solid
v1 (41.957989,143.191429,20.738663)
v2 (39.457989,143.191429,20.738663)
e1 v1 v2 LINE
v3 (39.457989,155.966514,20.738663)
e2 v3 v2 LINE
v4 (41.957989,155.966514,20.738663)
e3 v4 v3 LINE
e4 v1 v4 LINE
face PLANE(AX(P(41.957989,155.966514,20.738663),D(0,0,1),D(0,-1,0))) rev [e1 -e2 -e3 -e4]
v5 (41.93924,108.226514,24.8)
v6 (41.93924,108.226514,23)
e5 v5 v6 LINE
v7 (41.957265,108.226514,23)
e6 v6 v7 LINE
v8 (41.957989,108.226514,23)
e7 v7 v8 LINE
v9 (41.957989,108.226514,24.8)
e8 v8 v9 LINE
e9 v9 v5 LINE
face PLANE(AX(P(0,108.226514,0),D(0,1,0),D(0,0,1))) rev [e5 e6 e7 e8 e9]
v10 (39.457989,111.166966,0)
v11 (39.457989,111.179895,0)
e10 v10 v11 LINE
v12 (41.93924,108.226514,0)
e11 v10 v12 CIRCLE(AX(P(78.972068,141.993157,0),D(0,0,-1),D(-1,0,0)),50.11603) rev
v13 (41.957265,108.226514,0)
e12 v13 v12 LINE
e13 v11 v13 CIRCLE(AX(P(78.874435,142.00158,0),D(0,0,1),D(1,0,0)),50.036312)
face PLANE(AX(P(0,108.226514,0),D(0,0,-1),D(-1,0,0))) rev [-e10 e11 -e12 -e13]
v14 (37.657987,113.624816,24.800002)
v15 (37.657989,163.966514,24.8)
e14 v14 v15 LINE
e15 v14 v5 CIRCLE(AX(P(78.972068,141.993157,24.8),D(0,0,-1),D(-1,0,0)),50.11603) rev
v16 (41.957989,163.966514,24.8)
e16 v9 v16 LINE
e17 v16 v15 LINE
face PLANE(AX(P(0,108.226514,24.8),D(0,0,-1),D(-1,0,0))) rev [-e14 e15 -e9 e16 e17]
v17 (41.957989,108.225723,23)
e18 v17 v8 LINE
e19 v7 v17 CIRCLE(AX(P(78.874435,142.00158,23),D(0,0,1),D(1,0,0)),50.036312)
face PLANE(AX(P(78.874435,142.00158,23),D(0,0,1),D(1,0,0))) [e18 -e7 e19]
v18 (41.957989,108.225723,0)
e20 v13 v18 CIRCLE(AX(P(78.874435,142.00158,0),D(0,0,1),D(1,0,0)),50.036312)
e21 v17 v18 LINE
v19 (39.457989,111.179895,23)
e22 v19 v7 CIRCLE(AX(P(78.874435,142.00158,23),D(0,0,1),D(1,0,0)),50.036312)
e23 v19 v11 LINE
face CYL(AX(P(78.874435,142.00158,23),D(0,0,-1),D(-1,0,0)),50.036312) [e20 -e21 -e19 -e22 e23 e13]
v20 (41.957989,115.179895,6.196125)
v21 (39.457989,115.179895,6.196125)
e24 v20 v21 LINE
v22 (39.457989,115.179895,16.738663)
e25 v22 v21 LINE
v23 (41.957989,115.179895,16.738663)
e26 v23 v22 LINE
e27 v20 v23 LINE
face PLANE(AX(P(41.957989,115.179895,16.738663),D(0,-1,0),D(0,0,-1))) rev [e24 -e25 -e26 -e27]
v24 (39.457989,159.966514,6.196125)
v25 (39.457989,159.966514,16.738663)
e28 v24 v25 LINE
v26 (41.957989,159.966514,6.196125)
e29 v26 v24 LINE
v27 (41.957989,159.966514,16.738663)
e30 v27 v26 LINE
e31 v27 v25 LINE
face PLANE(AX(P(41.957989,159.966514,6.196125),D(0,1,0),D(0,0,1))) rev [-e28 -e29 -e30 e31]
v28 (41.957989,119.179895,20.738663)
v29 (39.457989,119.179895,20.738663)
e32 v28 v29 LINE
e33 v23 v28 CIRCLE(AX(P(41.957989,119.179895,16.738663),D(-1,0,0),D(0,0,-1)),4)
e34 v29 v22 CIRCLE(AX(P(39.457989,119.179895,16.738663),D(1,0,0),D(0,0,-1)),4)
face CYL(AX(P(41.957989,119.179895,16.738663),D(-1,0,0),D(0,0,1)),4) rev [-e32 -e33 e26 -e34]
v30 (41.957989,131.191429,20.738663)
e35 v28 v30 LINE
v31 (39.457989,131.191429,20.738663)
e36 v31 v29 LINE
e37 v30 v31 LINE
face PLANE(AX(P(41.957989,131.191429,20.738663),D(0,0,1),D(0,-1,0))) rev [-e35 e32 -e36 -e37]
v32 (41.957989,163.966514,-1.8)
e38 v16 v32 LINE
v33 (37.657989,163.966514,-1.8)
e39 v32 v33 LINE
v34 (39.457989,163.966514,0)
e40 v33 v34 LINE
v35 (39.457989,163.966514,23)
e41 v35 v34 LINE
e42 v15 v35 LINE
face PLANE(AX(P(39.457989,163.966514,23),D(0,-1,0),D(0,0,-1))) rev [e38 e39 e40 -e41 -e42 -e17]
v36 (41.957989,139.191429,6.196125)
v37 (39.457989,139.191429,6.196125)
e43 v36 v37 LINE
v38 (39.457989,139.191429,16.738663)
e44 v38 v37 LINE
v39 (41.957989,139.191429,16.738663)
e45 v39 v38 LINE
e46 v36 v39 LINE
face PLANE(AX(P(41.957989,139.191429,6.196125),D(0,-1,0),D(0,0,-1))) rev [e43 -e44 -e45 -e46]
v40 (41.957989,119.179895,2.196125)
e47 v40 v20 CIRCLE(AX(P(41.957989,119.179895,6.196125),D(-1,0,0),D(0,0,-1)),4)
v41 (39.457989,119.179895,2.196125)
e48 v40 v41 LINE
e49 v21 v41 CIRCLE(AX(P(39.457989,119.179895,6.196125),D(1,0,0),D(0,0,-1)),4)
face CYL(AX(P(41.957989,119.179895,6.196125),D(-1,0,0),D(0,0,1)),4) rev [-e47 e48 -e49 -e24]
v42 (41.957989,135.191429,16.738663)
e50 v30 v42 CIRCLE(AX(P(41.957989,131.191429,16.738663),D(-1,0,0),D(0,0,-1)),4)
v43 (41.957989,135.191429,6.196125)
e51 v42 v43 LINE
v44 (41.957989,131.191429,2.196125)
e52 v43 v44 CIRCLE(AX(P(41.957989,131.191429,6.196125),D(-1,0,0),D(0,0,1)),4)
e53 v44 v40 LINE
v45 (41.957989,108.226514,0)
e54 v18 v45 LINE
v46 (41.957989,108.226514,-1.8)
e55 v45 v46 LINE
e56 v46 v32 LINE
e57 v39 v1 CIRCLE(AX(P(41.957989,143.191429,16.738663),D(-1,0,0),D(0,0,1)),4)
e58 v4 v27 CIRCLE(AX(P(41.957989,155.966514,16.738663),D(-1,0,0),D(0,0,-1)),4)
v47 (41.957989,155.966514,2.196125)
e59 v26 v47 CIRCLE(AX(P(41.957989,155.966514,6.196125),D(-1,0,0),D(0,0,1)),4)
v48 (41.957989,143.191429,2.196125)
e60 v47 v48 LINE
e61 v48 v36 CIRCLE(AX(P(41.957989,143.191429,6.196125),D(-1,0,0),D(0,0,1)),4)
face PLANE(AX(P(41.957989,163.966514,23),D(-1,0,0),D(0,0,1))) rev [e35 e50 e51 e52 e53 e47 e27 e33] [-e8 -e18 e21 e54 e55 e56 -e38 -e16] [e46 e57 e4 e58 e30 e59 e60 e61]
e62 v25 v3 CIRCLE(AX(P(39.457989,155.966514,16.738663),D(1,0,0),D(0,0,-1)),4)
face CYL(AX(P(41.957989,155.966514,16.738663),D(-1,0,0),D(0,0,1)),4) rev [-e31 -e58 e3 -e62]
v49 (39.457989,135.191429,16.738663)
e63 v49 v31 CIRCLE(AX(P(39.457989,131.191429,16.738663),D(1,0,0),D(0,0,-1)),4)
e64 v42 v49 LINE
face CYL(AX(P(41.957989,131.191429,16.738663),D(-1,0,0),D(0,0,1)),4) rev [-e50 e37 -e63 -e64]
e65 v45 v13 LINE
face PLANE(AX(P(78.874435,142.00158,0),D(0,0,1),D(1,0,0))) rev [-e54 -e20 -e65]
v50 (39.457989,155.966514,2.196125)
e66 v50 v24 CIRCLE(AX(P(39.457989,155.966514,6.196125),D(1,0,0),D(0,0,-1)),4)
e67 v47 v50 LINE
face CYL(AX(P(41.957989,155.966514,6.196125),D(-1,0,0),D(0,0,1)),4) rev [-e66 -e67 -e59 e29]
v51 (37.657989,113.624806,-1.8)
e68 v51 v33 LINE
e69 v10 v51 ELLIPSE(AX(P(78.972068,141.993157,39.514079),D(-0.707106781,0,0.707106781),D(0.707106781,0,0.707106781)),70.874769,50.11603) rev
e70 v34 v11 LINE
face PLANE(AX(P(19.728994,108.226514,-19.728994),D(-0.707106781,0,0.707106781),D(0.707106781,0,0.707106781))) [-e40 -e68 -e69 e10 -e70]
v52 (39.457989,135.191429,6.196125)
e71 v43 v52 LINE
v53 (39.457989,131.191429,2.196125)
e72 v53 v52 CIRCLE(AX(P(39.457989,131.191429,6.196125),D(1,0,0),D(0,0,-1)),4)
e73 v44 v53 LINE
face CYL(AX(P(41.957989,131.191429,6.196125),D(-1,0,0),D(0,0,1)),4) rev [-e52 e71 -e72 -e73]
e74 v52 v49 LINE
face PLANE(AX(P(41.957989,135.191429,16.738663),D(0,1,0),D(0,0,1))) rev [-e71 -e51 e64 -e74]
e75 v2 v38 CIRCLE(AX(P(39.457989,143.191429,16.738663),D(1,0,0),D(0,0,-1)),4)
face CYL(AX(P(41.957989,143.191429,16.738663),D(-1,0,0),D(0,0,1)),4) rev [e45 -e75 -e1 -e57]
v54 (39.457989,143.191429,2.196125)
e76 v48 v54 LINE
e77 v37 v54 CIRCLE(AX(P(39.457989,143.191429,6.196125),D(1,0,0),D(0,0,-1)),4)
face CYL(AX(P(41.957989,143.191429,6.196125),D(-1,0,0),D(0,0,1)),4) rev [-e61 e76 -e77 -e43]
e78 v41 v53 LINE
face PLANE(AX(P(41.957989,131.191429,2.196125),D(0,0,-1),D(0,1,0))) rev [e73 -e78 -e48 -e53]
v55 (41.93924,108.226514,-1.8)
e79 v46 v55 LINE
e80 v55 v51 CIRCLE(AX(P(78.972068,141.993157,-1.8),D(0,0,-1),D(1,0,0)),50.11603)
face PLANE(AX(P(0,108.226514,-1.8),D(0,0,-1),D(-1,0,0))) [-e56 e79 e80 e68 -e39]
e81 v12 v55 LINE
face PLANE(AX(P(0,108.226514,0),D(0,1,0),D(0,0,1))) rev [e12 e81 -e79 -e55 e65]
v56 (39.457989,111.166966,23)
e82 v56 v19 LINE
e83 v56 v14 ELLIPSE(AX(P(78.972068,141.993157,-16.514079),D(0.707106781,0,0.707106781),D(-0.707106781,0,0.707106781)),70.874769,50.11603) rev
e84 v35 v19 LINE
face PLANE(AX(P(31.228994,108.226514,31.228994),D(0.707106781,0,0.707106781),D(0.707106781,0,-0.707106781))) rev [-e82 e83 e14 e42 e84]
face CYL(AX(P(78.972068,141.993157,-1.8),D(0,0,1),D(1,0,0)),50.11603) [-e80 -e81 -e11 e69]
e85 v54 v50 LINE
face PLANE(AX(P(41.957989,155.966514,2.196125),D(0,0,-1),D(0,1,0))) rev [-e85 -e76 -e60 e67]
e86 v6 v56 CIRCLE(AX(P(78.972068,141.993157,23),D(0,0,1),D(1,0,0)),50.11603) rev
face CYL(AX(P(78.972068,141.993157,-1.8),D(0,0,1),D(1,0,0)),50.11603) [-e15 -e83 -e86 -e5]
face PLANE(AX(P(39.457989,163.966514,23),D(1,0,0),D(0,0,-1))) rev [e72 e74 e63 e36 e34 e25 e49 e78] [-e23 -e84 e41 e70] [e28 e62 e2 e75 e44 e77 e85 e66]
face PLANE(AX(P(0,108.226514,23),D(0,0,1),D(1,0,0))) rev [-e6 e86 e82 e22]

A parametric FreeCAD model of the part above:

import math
import FreeCAD as App
import Part
import Sketcher
Q = App.Units.Quantity


def add_polygon(sketch, points):
    """Adds a closed chain of lines whose ends are joined by coincident constraints."""
    first, n = sketch.GeometryCount, len(points)
    for a, b in zip(points, points[1:] + points[:1]):
        sketch.addGeometry(Part.LineSegment(App.Vector(*a, 0), App.Vector(*b, 0)), False)
    for i in range(n):
        sketch.addConstraint(Sketcher.Constraint("Coincident", first + i, 2, first + (i + 1) % n, 1))

doc = App.newDocument("Part")
body = doc.addObject("PartDesign::Body", "Body")

# Sketch on XY plane
sketch1 = doc.addObject("Sketcher::SketchObject", "Sketch")
body.addObject(sketch1)
sketch1.AttachmentSupport = (doc.XY_Plane, [""])
sketch1.MapMode = "FlatFace"
sketch1.addGeometry(Part.LineSegment(App.Vector(39.5, 164, 0), App.Vector(39.5, 111.2, 0)), False)
sketch1.addGeometry(Part.ArcOfCircle(Part.Circle(App.Vector(78.9, 142, 0), App.Vector(0, 0, 1), 50), math.radians(-141.98), math.radians(-137.54)), False)
sketch1.addGeometry(Part.LineSegment(App.Vector(42, 108.2, 0), App.Vector(42, 164, 0)), False)
sketch1.addGeometry(Part.LineSegment(App.Vector(42, 164, 0), App.Vector(39.5, 164, 0)), False)
sketch1.addConstraint(Sketcher.Constraint("Coincident", 0, 2, 1, 1))
sketch1.addConstraint(Sketcher.Constraint("Coincident", 1, 2, 2, 1))
sketch1.addConstraint(Sketcher.Constraint("Coincident", 2, 2, 3, 1))
sketch1.addConstraint(Sketcher.Constraint("Coincident", 3, 2, 0, 1))
sketch1.addConstraint(Sketcher.Constraint("Vertical", 0))
sketch1.addConstraint(Sketcher.Constraint("Vertical", 2))
sketch1.addConstraint(Sketcher.Constraint("Horizontal", 3))
sketch1.addConstraint(Sketcher.Constraint("DistanceX", 3, 2, 3, 1, Q("2.5 mm")))
sketch1.addConstraint(Sketcher.Constraint("Radius", 1, Q("50.036311 mm")))
sketch1.addConstraint(Sketcher.Constraint("DistanceY", 0, 2, 0, 1, Q("52.78662 mm")))
sketch1.addConstraint(Sketcher.Constraint("DistanceY", 2, 1, 2, 2, Q("55.740791 mm")))
sketch1.addConstraint(Sketcher.Constraint("DistanceY", -1, 1, 1, 3, Q("142.00158 mm")))
sketch1.addConstraint(Sketcher.Constraint("DistanceX", -1, 1, 0, 2, Q("39.457989 mm")))
pad1 = doc.addObject("PartDesign::Pad", "Pad")
body.addObject(pad1)
pad1.Profile = sketch1
pad1.Length = 23

# Sketch on XZ plane
sketch2 = doc.addObject("Sketcher::SketchObject", "Sketch001")
body.addObject(sketch2)
sketch2.AttachmentSupport = (doc.XZ_Plane, [""])
sketch2.MapMode = "FlatFace"
sketch2.AttachmentOffset = App.Placement(App.Vector(0, 0, -163.966514), App.Rotation())
add_polygon(sketch2, [(42, 0), (42, -1.8), (37.7, -1.8), (39.5, 0)])  # lines 0-3
add_polygon(sketch2, [(42, 24.8), (42, 23), (39.5, 23), (37.7, 24.8)])  # lines 4-7
sketch2.addConstraint(Sketcher.Constraint("Vertical", 0))
sketch2.addConstraint(Sketcher.Constraint("Horizontal", 1))
sketch2.addConstraint(Sketcher.Constraint("Horizontal", 3))
sketch2.addConstraint(Sketcher.Constraint("Vertical", 4))
sketch2.addConstraint(Sketcher.Constraint("Horizontal", 5))
sketch2.addConstraint(Sketcher.Constraint("Horizontal", 7))
sketch2.addConstraint(Sketcher.Constraint("PointOnObject", 2, 2, -1))
sketch2.addConstraint(Sketcher.Constraint("Perpendicular", 2, 6))
sketch2.addConstraint(Sketcher.Constraint("Vertical", 3, 2, 4, 2))
sketch2.addConstraint(Sketcher.Constraint("Vertical", 2, 2, 5, 2))
sketch2.addConstraint(Sketcher.Constraint("Vertical", 1, 2, 6, 2))
sketch2.addConstraint(Sketcher.Constraint("Equal", 0, 4))
sketch2.addConstraint(Sketcher.Constraint("DistanceX", 1, 2, 1, 1, Q("4.3 mm")))
sketch2.addConstraint(Sketcher.Constraint("DistanceX", 3, 1, 3, 2, Q("2.5 mm")))
sketch2.addConstraint(Sketcher.Constraint("DistanceY", -1, 1, 4, 2, Q("23 mm")))
sketch2.addConstraint(Sketcher.Constraint("DistanceX", -1, 1, 0, 2, Q("41.957989 mm")))
pad2 = doc.addObject("PartDesign::Pad", "Pad001")
body.addObject(pad2)
pad2.Profile = sketch2
pad2.Length = 55.74

# Sketch on YZ plane
sketch3 = doc.addObject("Sketcher::SketchObject", "Sketch002")
body.addObject(sketch3)
sketch3.AttachmentSupport = (doc.YZ_Plane, [""])
sketch3.MapMode = "FlatFace"
sketch3.AttachmentOffset = App.Placement(App.Vector(0, 0, 39.457989), App.Rotation())
sketch3.addGeometry(Part.LineSegment(App.Vector(160, 16.7, 0), App.Vector(160, 6.2, 0)), False)
sketch3.addGeometry(Part.ArcOfCircle(Part.Circle(App.Vector(156, 6.2, 0), App.Vector(0, 0, 1), 4), math.radians(-90), math.radians(0)), False)
sketch3.addGeometry(Part.LineSegment(App.Vector(156, 2.2, 0), App.Vector(143.2, 2.2, 0)), False)
sketch3.addGeometry(Part.ArcOfCircle(Part.Circle(App.Vector(143.2, 6.2, 0), App.Vector(0, 0, 1), 4), math.radians(-180), math.radians(-90)), False)
sketch3.addGeometry(Part.LineSegment(App.Vector(139.2, 6.2, 0), App.Vector(139.2, 16.7, 0)), False)
sketch3.addGeometry(Part.ArcOfCircle(Part.Circle(App.Vector(143.2, 16.7, 0), App.Vector(0, 0, 1), 4), math.radians(90), math.radians(180)), False)
sketch3.addGeometry(Part.LineSegment(App.Vector(143.2, 20.7, 0), App.Vector(156, 20.7, 0)), False)
sketch3.addGeometry(Part.ArcOfCircle(Part.Circle(App.Vector(156, 16.7, 0), App.Vector(0, 0, 1), 4), math.radians(0), math.radians(90)), False)
sketch3.addGeometry(Part.LineSegment(App.Vector(135.2, 16.7, 0), App.Vector(135.2, 6.2, 0)), False)
sketch3.addGeometry(Part.ArcOfCircle(Part.Circle(App.Vector(131.2, 6.2, 0), App.Vector(0, 0, 1), 4), math.radians(-90), math.radians(0)), False)
sketch3.addGeometry(Part.LineSegment(App.Vector(131.2, 2.2, 0), App.Vector(119.2, 2.2, 0)), False)
sketch3.addGeometry(Part.ArcOfCircle(Part.Circle(App.Vector(119.2, 6.2, 0), App.Vector(0, 0, 1), 4), math.radians(-180), math.radians(-90)), False)
sketch3.addGeometry(Part.LineSegment(App.Vector(115.2, 6.2, 0), App.Vector(115.2, 16.7, 0)), False)
sketch3.addGeometry(Part.ArcOfCircle(Part.Circle(App.Vector(119.2, 16.7, 0), App.Vector(0, 0, 1), 4), math.radians(90), math.radians(180)), False)
sketch3.addGeometry(Part.LineSegment(App.Vector(119.2, 20.7, 0), App.Vector(131.2, 20.7, 0)), False)
sketch3.addGeometry(Part.ArcOfCircle(Part.Circle(App.Vector(131.2, 16.7, 0), App.Vector(0, 0, 1), 4), math.radians(0), math.radians(90)), False)
sketch3.addConstraint(Sketcher.Constraint("Tangent", 0, 2, 1, 2))
sketch3.addConstraint(Sketcher.Constraint("Tangent", 1, 1, 2, 1))
sketch3.addConstraint(Sketcher.Constraint("Tangent", 2, 2, 3, 2))
sketch3.addConstraint(Sketcher.Constraint("Tangent", 3, 1, 4, 1))
sketch3.addConstraint(Sketcher.Constraint("Tangent", 4, 2, 5, 2))
sketch3.addConstraint(Sketcher.Constraint("Tangent", 5, 1, 6, 1))
sketch3.addConstraint(Sketcher.Constraint("Tangent", 6, 2, 7, 2))
sketch3.addConstraint(Sketcher.Constraint("Tangent", 7, 1, 0, 1))
sketch3.addConstraint(Sketcher.Constraint("Tangent", 8, 2, 9, 2))
sketch3.addConstraint(Sketcher.Constraint("Tangent", 9, 1, 10, 1))
sketch3.addConstraint(Sketcher.Constraint("Tangent", 10, 2, 11, 2))
sketch3.addConstraint(Sketcher.Constraint("Tangent", 11, 1, 12, 1))
sketch3.addConstraint(Sketcher.Constraint("Tangent", 12, 2, 13, 2))
sketch3.addConstraint(Sketcher.Constraint("Tangent", 13, 1, 14, 1))
sketch3.addConstraint(Sketcher.Constraint("Tangent", 14, 2, 15, 2))
sketch3.addConstraint(Sketcher.Constraint("Tangent", 15, 1, 8, 1))
sketch3.addConstraint(Sketcher.Constraint("Vertical", 0))
sketch3.addConstraint(Sketcher.Constraint("Horizontal", 2))
sketch3.addConstraint(Sketcher.Constraint("Vertical", 4))
sketch3.addConstraint(Sketcher.Constraint("Horizontal", 6))
sketch3.addConstraint(Sketcher.Constraint("Vertical", 8))
sketch3.addConstraint(Sketcher.Constraint("Horizontal", 10))
sketch3.addConstraint(Sketcher.Constraint("Vertical", 12))
sketch3.addConstraint(Sketcher.Constraint("Horizontal", 14))
sketch3.addConstraint(Sketcher.Constraint("Equal", 1, 3))
sketch3.addConstraint(Sketcher.Constraint("Equal", 3, 5))
sketch3.addConstraint(Sketcher.Constraint("Equal", 5, 7))
sketch3.addConstraint(Sketcher.Constraint("Equal", 7, 9))
sketch3.addConstraint(Sketcher.Constraint("Equal", 9, 11))
sketch3.addConstraint(Sketcher.Constraint("Equal", 11, 13))
sketch3.addConstraint(Sketcher.Constraint("Equal", 13, 15))
sketch3.addConstraint(Sketcher.Constraint("Horizontal", 3, 3, 9, 3))
sketch3.addConstraint(Sketcher.Constraint("Horizontal", 7, 3, 13, 3))
sketch3.addConstraint(Sketcher.Constraint("Radius", 1, Q("4 mm")))
sketch3.addConstraint(Sketcher.Constraint("DistanceX", 9, 3, 3, 3, Q("12 mm")))
sketch3.addConstraint(Sketcher.Constraint("DistanceY", 0, 2, 0, 1, Q("10.542538 mm")))
sketch3.addConstraint(Sketcher.Constraint("DistanceX", 2, 2, 2, 1, Q("12.775085 mm")))
sketch3.addConstraint(Sketcher.Constraint("DistanceX", 10, 2, 10, 1, Q("12.011535 mm")))
sketch3.addConstraint(Sketcher.Constraint("DistanceX", -1, 1, 3, 3, Q("143.191429 mm")))
sketch3.addConstraint(Sketcher.Constraint("DistanceY", -1, 1, 1, 3, Q("6.196125 mm")))
pocket1 = doc.addObject("PartDesign::Pocket", "Pocket")
body.addObject(pocket1)
pocket1.Profile = sketch3
pocket1.Type = "ThroughAll"
pocket1.Midplane = True

# Sketch on XY plane
sketch4 = doc.addObject("Sketcher::SketchObject", "Sketch003")
body.addObject(sketch4)
sketch4.AttachmentSupport = (doc.XY_Plane, [""])
sketch4.MapMode = "FlatFace"
sketch4.AttachmentOffset = App.Placement(App.Vector(0, 0, 24.8), App.Rotation())
sketch4.addGeometry(Part.LineSegment(App.Vector(36, 116, 0), App.Vector(36, 106, 0)), False)
sketch4.addGeometry(Part.LineSegment(App.Vector(36, 106, 0), App.Vector(45, 105, 0)), False)
sketch4.addGeometry(Part.ArcOfCircle(Part.Circle(App.Vector(79, 142, 0), App.Vector(0, 0, 1), 50), math.radians(-149.4), math.radians(-132.6)), False)
sketch4.addConstraint(Sketcher.Constraint("Coincident", 0, 2, 1, 1))
sketch4.addConstraint(Sketcher.Constraint("Coincident", 1, 2, 2, 2))
sketch4.addConstraint(Sketcher.Constraint("Coincident", 2, 1, 0, 1))
sketch4.addConstraint(Sketcher.Constraint("Radius", 2, Q("50.11603 mm")))
sketch4.addConstraint(Sketcher.Constraint("DistanceX", -1, 1, 0, 2, Q("36.387772 mm")))
sketch4.addConstraint(Sketcher.Constraint("DistanceX", -1, 1, 1, 2, Q("45.050232 mm")))
sketch4.addConstraint(Sketcher.Constraint("DistanceY", 1, 2, 0, 2, Q("0.68844 mm")))
sketch4.addConstraint(Sketcher.Constraint("DistanceY", 2, 1, 2, 3, Q("25.510019 mm")))
sketch4.addConstraint(Sketcher.Constraint("Distance", 0, Q("10.706573 mm")))
sketch4.addConstraint(Sketcher.Constraint("DistanceY", -1, 1, 2, 3, Q("141.993157 mm")))
pocket2 = doc.addObject("PartDesign::Pocket", "Pocket001")
body.addObject(pocket2)
pocket2.Profile = sketch4
pocket2.Type = "ThroughAll"
pocket2.Midplane = True

doc.recompute()
